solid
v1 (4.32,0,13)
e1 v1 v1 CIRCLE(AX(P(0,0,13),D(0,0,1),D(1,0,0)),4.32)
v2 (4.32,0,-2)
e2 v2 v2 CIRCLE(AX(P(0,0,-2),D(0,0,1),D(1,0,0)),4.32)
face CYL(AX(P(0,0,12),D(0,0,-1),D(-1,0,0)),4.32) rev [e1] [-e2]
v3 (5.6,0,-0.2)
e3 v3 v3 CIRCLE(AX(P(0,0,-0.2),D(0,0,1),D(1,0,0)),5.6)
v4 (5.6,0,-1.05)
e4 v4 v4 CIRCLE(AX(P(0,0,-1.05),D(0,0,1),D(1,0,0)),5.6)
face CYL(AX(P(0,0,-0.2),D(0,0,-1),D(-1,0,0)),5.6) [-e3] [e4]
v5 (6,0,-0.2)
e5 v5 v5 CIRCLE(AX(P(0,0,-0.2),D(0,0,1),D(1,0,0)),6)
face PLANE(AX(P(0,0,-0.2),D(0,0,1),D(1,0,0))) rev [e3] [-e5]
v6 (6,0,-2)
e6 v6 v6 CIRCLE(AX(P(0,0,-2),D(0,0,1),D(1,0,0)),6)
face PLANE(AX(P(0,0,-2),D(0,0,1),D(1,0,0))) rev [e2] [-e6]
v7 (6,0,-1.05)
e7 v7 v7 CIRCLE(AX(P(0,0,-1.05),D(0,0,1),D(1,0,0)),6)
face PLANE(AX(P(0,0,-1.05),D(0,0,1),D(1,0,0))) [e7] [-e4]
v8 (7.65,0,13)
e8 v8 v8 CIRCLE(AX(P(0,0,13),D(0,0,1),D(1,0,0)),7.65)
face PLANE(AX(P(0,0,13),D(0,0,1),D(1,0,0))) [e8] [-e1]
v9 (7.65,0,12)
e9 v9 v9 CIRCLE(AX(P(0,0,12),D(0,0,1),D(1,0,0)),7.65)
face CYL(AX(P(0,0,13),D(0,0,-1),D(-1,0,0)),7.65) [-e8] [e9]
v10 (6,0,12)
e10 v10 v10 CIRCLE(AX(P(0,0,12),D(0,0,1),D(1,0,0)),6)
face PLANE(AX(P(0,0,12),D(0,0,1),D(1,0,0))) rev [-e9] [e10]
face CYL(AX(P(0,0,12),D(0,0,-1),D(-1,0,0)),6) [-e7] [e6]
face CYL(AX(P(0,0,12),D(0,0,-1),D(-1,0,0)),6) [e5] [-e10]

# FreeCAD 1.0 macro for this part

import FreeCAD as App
import Part
import Sketcher
from FreeCAD import Vector
Q = App.Units.Quantity

doc = App.newDocument("Part")
body = doc.addObject("PartDesign::Body", "Body")

# Sketch on XY plane
sketch1 = doc.addObject("Sketcher::SketchObject", "Sketch")
body.addObject(sketch1)
sketch1.AttachmentSupport = (doc.XY_Plane, [""])
sketch1.MapMode = "FlatFace"
sketch1.AttachmentOffset = App.Placement(Vector(0, 0, -2), App.Rotation())
sketch1.addGeometry([
    Part.Circle(Vector(0, 0, 0), Vector(0, 0, 1), 6),
    Part.Circle(Vector(0, 0, 0), Vector(0, 0, 1), 4.32),
], False)
sketch1.addConstraint([
    Sketcher.Constraint("Coincident", 0, 3, -1, 1),
    Sketcher.Constraint("Coincident", 1, 3, -1, 1),
    Sketcher.Constraint("Diameter", 0, Q("12 mm")),
    Sketcher.Constraint("Diameter", 1, Q("8.64 mm")),
])
pad1 = doc.addObject("PartDesign::Pad", "Pad")
body.addObject(pad1)
pad1.Profile = sketch1
pad1.Length = 14

# Sketch on XY plane
sketch2 = doc.addObject("Sketcher::SketchObject", "Sketch001")
body.addObject(sketch2)
sketch2.AttachmentSupport = (doc.XY_Plane, [""])
sketch2.MapMode = "FlatFace"
sketch2.AttachmentOffset = App.Placement(Vector(0, 0, 12), App.Rotation())
sketch2.addGeometry([
    Part.Circle(Vector(0, 0, 0), Vector(0, 0, 1), 7.65),
    Part.Circle(Vector(0, 0, 0), Vector(0, 0, 1), 4.32),
], False)
sketch2.addConstraint([
    Sketcher.Constraint("Coincident", 0, 3, -1, 1),
    Sketcher.Constraint("Coincident", 1, 3, -1, 1),
    Sketcher.Constraint("Diameter", 0, Q("15.3 mm")),
    Sketcher.Constraint("Diameter", 1, Q("8.64 mm")),
])
pad2 = doc.addObject("PartDesign::Pad", "Pad001")
body.addObject(pad2)
pad2.Profile = sketch2
pad2.Length = 1

# Sketch on XY plane
sketch3 = doc.addObject("Sketcher::SketchObject", "Sketch002")
body.addObject(sketch3)
sketch3.AttachmentSupport = (doc.XY_Plane, [""])
sketch3.MapMode = "FlatFace"
sketch3.AttachmentOffset = App.Placement(Vector(0, 0, -1.05), App.Rotation())
sketch3.addGeometry([
    Part.Circle(Vector(0, 0, 0), Vector(0, 0, 1), 6.1),
    Part.Circle(Vector(0, 0, 0), Vector(0, 0, 1), 5.6),
], False)
sketch3.addConstraint([
    Sketcher.Constraint("Coincident", 0, 3, -1, 1),
    Sketcher.Constraint("Coincident", 1, 3, -1, 1),
    Sketcher.Constraint("Diameter", 0, Q("12.2 mm")),
    Sketcher.Constraint("Diameter", 1, Q("11.2 mm")),
])
pocket1 = doc.addObject("PartDesign::Pocket", "Pocket")
body.addObject(pocket1)
pocket1.Profile = sketch3
pocket1.Length = 0.85
pocket1.Reversed = True

doc.recompute()
